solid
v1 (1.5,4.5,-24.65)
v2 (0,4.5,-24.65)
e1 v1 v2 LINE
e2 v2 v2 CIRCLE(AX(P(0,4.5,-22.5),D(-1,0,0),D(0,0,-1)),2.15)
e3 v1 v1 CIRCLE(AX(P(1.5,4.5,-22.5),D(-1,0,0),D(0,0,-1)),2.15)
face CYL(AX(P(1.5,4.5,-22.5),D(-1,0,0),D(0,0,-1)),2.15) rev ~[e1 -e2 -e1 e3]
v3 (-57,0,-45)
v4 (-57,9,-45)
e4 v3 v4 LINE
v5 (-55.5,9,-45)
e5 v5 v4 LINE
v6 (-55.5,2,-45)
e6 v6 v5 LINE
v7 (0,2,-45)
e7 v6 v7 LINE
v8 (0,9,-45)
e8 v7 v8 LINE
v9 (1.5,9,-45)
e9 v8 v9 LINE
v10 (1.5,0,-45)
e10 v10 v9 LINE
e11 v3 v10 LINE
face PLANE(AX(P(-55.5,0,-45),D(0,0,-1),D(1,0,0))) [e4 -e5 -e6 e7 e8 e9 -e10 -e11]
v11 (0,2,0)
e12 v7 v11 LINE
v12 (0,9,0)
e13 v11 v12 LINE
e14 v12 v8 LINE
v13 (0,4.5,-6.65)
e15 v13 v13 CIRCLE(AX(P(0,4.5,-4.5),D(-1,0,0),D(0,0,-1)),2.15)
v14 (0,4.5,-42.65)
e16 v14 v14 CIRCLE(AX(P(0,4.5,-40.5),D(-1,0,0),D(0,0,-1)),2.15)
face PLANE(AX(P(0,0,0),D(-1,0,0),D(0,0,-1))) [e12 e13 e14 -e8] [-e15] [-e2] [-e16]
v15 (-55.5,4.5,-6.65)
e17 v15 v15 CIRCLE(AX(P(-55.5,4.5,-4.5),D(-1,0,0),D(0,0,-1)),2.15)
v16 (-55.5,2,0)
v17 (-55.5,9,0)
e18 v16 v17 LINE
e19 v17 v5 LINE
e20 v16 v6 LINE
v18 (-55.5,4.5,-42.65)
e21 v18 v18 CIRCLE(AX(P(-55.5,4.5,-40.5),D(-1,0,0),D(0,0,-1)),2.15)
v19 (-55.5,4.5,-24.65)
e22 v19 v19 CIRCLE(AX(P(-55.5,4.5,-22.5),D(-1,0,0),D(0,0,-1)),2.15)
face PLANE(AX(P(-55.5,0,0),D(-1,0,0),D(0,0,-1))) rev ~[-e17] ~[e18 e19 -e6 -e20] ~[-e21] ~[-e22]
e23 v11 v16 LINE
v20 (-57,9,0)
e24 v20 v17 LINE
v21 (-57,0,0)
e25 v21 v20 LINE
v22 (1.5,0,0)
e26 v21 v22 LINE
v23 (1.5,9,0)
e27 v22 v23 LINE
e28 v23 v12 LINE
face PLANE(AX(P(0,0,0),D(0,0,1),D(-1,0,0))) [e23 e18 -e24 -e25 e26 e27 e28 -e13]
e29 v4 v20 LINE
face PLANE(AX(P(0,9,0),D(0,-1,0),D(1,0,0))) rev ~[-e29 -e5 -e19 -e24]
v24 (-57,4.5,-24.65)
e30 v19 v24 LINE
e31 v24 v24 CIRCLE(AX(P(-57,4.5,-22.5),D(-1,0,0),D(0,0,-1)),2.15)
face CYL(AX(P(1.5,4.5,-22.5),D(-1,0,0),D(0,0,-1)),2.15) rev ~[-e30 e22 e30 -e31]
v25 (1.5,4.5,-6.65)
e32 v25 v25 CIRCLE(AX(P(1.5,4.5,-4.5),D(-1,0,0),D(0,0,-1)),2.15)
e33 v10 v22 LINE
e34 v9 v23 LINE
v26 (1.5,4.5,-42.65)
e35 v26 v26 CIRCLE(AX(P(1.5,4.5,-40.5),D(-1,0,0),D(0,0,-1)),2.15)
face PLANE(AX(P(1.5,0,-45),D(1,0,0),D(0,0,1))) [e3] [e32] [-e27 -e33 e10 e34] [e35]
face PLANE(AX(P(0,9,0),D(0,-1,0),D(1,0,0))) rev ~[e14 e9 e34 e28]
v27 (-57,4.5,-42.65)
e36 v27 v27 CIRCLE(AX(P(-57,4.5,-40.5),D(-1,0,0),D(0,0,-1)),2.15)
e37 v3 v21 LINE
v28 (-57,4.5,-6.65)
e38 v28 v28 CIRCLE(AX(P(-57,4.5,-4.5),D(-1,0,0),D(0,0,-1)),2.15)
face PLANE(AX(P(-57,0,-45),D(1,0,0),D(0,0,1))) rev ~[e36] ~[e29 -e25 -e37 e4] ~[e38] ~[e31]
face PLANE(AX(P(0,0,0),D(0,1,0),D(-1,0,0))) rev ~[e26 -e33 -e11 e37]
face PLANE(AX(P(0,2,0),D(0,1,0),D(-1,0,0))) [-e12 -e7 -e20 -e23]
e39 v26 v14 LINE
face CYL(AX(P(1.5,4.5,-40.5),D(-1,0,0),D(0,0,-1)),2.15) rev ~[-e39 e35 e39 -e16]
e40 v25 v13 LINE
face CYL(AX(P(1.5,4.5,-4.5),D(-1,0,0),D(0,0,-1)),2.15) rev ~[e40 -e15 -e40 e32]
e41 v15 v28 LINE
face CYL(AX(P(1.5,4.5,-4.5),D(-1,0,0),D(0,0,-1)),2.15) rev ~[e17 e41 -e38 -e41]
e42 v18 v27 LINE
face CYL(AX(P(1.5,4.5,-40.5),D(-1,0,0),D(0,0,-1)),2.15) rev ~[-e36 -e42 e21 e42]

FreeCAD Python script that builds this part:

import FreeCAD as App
import Part
import Sketcher


def add_polygon(sketch, points):
    """Adds a closed chain of lines whose ends are joined by coincident constraints."""
    first, n = sketch.GeometryCount, len(points)
    for a, b in zip(points, points[1:] + points[:1]):
        sketch.addGeometry(Part.LineSegment(App.Vector(*a, 0), App.Vector(*b, 0)), False)
    for i in range(n):
        sketch.addConstraint(Sketcher.Constraint("Coincident", first + i, 2, first + (i + 1) % n, 1))

doc = App.newDocument("Part")
body = doc.addObject("PartDesign::Body", "Body")

sketch1 = doc.addObject("Sketcher::SketchObject", "Sketch")
body.addObject(sketch1)
sketch1.AttachmentSupport = (doc.XZ_Plane, [""])
sketch1.MapMode = "FlatFace"
add_polygon(sketch1, [(-56, 0), (0, 0), (0, -45), (-56, -45)])
sketch1.addConstraint(Sketcher.Constraint("Horizontal", 0))
sketch1.addConstraint(Sketcher.Constraint("Vertical", 1))
sketch1.addConstraint(Sketcher.Constraint("Horizontal", 2))
sketch1.addConstraint(Sketcher.Constraint("Vertical", 3))
sketch1.addConstraint(Sketcher.Constraint("Coincident", 0, 2, -1, 1))
sketch1.addConstraint(Sketcher.Constraint("DistanceY", 1, 2, 1, 1, 45.0))
sketch1.addConstraint(Sketcher.Constraint("DistanceX", 0, 1, 0, 2, 55.5))
pad1 = doc.addObject("PartDesign::Pad", "Pad")
body.addObject(pad1)
pad1.Profile = sketch1
pad1.Length = 2
pad1.Reversed = True

sketch2 = doc.addObject("Sketcher::SketchObject", "Sketch001")
body.addObject(sketch2)
sketch2.AttachmentSupport = (doc.XZ_Plane, [""])
sketch2.MapMode = "FlatFace"
add_polygon(sketch2, [(-57, -45), (-55.5, -45), (-55.5, 0), (-57, 0)])
add_polygon(sketch2, [(0, 0), (0, -45), (1.5, -45), (1.5, 0)])
sketch2.addConstraint(Sketcher.Constraint("Horizontal", 0))
sketch2.addConstraint(Sketcher.Constraint("Vertical", 1))
sketch2.addConstraint(Sketcher.Constraint("Horizontal", 2))
sketch2.addConstraint(Sketcher.Constraint("Vertical", 3))
sketch2.addConstraint(Sketcher.Constraint("Vertical", 4))
sketch2.addConstraint(Sketcher.Constraint("Horizontal", 5))
sketch2.addConstraint(Sketcher.Constraint("Vertical", 6))
sketch2.addConstraint(Sketcher.Constraint("Horizontal", 7))
sketch2.addConstraint(Sketcher.Constraint("Coincident", 7, 2, -1, 1))
sketch2.addConstraint(Sketcher.Constraint("PointOnObject", 1, 2, -1))
sketch2.addConstraint(Sketcher.Constraint("Horizontal", 3, 2, 4, 2))
sketch2.addConstraint(Sketcher.Constraint("Equal", 2, 5))
sketch2.addConstraint(Sketcher.Constraint("DistanceX", 0, 1, 0, 2, 1.5))
sketch2.addConstraint(Sketcher.Constraint("DistanceY", 1, 1, 1, 2, 45.0))
sketch2.addConstraint(Sketcher.Constraint("DistanceX", 2, 2, -1, 1, 57.0))
pad2 = doc.addObject("PartDesign::Pad", "Pad001")
body.addObject(pad2)
pad2.Profile = sketch2
pad2.Length = 9
pad2.Reversed = True

sketch3 = doc.addObject("Sketcher::SketchObject", "Sketch002")
body.addObject(sketch3)
sketch3.AttachmentSupport = (doc.YZ_Plane, [""])
sketch3.MapMode = "FlatFace"
sketch3.AttachmentOffset = App.Placement(App.Vector(0, 0, 1.5), App.Rotation())
sketch3.addGeometry(Part.Circle(App.Vector(4.5, -4.5, 0), App.Vector(0, 0, 1), 2.1), False)
sketch3.addGeometry(Part.Circle(App.Vector(4.5, -22.5, 0), App.Vector(0, 0, 1), 2.1), False)
sketch3.addGeometry(Part.Circle(App.Vector(4.5, -40.5, 0), App.Vector(0, 0, 1), 2.1), False)
sketch3.addConstraint(Sketcher.Constraint("Equal", 0, 1))
sketch3.addConstraint(Sketcher.Constraint("Equal", 1, 2))
sketch3.addConstraint(Sketcher.Constraint("Vertical", 0, 3, 1, 3))
sketch3.addConstraint(Sketcher.Constraint("Vertical", 1, 3, 2, 3))
sketch3.addConstraint(Sketcher.Constraint("Diameter", 0, 4.3))
sketch3.addConstraint(Sketcher.Constraint("DistanceY", 1, 3, 0, 3, 18.0))
sketch3.addConstraint(Sketcher.Constraint("DistanceY", 2, 3, 1, 3, 18.0))
sketch3.addConstraint(Sketcher.Constraint("DistanceX", -1, 1, 0, 3, 4.5))
sketch3.addConstraint(Sketcher.Constraint("DistanceY", 0, 3, -1, 1, 4.5))
doc.recompute()
hole = doc.addObject("PartDesign::Hole", "Hole")
body.addObject(hole)
hole.Profile = sketch3
hole.ThreadType = "None"
hole.Diameter = 4.3
hole.DepthType = "ThroughAll"

doc.recompute()
